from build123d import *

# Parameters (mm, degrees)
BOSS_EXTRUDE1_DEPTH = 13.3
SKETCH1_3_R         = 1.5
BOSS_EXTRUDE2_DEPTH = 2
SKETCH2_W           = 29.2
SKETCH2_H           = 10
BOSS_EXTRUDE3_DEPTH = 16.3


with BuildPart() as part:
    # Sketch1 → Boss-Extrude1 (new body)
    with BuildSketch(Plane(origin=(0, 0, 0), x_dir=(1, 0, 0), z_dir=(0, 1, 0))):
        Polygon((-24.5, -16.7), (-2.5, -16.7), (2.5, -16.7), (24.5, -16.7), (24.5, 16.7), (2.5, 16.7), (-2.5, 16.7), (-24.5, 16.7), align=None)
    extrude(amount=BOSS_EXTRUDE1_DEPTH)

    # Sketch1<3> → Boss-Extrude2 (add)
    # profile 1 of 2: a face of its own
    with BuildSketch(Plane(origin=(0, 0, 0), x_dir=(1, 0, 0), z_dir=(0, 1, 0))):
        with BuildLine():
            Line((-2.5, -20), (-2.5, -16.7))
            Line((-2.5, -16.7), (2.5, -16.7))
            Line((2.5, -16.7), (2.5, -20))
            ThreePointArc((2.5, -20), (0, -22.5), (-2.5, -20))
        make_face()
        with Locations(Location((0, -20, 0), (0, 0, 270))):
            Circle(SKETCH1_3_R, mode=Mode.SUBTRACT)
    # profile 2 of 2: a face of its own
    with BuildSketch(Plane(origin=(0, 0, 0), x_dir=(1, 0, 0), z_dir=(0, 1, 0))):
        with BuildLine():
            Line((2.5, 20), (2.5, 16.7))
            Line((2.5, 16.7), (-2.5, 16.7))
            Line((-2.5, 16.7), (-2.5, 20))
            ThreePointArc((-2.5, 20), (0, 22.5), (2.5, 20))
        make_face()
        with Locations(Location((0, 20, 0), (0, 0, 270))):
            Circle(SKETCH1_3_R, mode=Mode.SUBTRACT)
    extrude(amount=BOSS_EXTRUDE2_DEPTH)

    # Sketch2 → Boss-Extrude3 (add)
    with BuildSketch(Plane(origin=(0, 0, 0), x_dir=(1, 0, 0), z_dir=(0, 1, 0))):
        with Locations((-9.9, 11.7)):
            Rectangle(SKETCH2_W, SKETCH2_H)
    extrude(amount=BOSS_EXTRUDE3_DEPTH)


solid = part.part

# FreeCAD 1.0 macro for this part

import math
import FreeCAD as App
import Part
import Sketcher

doc = App.newDocument("Part")
body = doc.addObject("PartDesign::Body", "Body")

sketch1 = body.newObject("Sketcher::SketchObject", "Sketch")
sketch1.AttachmentSupport = (doc.getObject("XZ_Plane"), [""])
sketch1.MapMode = "FlatFace"
sketch1.addGeometry(Part.LineSegment(App.Vector(-24, 17, 0), App.Vector(24, 17, 0)), False)
sketch1.addGeometry(Part.LineSegment(App.Vector(24, 17, 0), App.Vector(24, -17, 0)), False)
sketch1.addGeometry(Part.LineSegment(App.Vector(24, -17, 0), App.Vector(-24, -17, 0)), False)
sketch1.addGeometry(Part.LineSegment(App.Vector(-24, -17, 0), App.Vector(-24, 17, 0)), False)
sketch1.addConstraint(Sketcher.Constraint("Coincident", 0, 2, 1, 1))
sketch1.addConstraint(Sketcher.Constraint("Coincident", 1, 2, 2, 1))
sketch1.addConstraint(Sketcher.Constraint("Coincident", 2, 2, 3, 1))
sketch1.addConstraint(Sketcher.Constraint("Coincident", 3, 2, 0, 1))
sketch1.addConstraint(Sketcher.Constraint("Horizontal", 0))
sketch1.addConstraint(Sketcher.Constraint("Vertical", 1))
sketch1.addConstraint(Sketcher.Constraint("Horizontal", 2))
sketch1.addConstraint(Sketcher.Constraint("Vertical", 3))
sketch1.addConstraint(Sketcher.Constraint("Symmetric", 0, 2, 2, 2, -1, 1))
sketch1.addConstraint(Sketcher.Constraint("DistanceX", 0, 1, 0, 2, 49.0))
sketch1.addConstraint(Sketcher.Constraint("DistanceY", 1, 2, 1, 1, 33.4))
pad1 = body.newObject("PartDesign::Pad", "Pad")
pad1.Profile = sketch1
pad1.Length = 13.3
pad1.Reversed = True

sketch2 = body.newObject("Sketcher::SketchObject", "Sketch001")
sketch2.AttachmentSupport = (doc.getObject("XZ_Plane"), [""])
sketch2.MapMode = "FlatFace"
sketch2.addGeometry(Part.LineSegment(App.Vector(-2.5, 16.7, 0), App.Vector(-2.5, 20, 0)), False)
sketch2.addGeometry(Part.ArcOfCircle(Part.Circle(App.Vector(0, 20, 0), App.Vector(0, 0, 1), 2.5), math.radians(0), math.radians(180)), False)
sketch2.addGeometry(Part.LineSegment(App.Vector(2.5, 20, 0), App.Vector(2.5, 16.7, 0)), False)
sketch2.addGeometry(Part.LineSegment(App.Vector(2.5, 16.7, 0), App.Vector(-2.5, 16.7, 0)), False)
sketch2.addGeometry(Part.Circle(App.Vector(0, 20, 0), App.Vector(0, 0, 1), 1.5), False)
sketch2.addGeometry(Part.LineSegment(App.Vector(2.5, -16.7, 0), App.Vector(2.5, -20, 0)), False)
sketch2.addGeometry(Part.ArcOfCircle(Part.Circle(App.Vector(0, -20, 0), App.Vector(0, 0, 1), 2.5), math.radians(180), math.radians(360)), False)
sketch2.addGeometry(Part.LineSegment(App.Vector(-2.5, -20, 0), App.Vector(-2.5, -16.7, 0)), False)
sketch2.addGeometry(Part.LineSegment(App.Vector(-2.5, -16.7, 0), App.Vector(2.5, -16.7, 0)), False)
sketch2.addGeometry(Part.Circle(App.Vector(0, -20, 0), App.Vector(0, 0, 1), 1.5), False)
sketch2.addConstraint(Sketcher.Constraint("Tangent", 0, 2, 1, 2))
sketch2.addConstraint(Sketcher.Constraint("Tangent", 1, 1, 2, 1))
sketch2.addConstraint(Sketcher.Constraint("Coincident", 2, 2, 3, 1))
sketch2.addConstraint(Sketcher.Constraint("Coincident", 3, 2, 0, 1))
sketch2.addConstraint(Sketcher.Constraint("Tangent", 5, 2, 6, 2))
sketch2.addConstraint(Sketcher.Constraint("Tangent", 6, 1, 7, 1))
sketch2.addConstraint(Sketcher.Constraint("Coincident", 7, 2, 8, 1))
sketch2.addConstraint(Sketcher.Constraint("Coincident", 8, 2, 5, 1))
sketch2.addConstraint(Sketcher.Constraint("Vertical", 0))
sketch2.addConstraint(Sketcher.Constraint("Vertical", 2))
sketch2.addConstraint(Sketcher.Constraint("Horizontal", 3))
sketch2.addConstraint(Sketcher.Constraint("Vertical", 5))
sketch2.addConstraint(Sketcher.Constraint("Vertical", 7))
sketch2.addConstraint(Sketcher.Constraint("Horizontal", 8))
sketch2.addConstraint(Sketcher.Constraint("Coincident", 4, 3, 1, 3))
sketch2.addConstraint(Sketcher.Constraint("Coincident", 9, 3, 6, 3))
sketch2.addConstraint(Sketcher.Constraint("Equal", 1, 6))
sketch2.addConstraint(Sketcher.Constraint("Equal", 4, 9))
sketch2.addConstraint(Sketcher.Constraint("Symmetric", 1, 3, 6, 3, -1, 1))
sketch2.addConstraint(Sketcher.Constraint("Symmetric", 3, 2, 7, 2, -1))
sketch2.addConstraint(Sketcher.Constraint("Diameter", 4, 3.0))
sketch2.addConstraint(Sketcher.Constraint("Radius", 1, 2.5))
sketch2.addConstraint(Sketcher.Constraint("DistanceY", 0, 1, 0, 2, 3.3))
sketch2.addConstraint(Sketcher.Constraint("DistanceY", -1, 1, 1, 3, 20.0))
pad2 = body.newObject("PartDesign::Pad", "Pad001")
pad2.Profile = sketch2
pad2.Length = 2
pad2.Reversed = True

sketch3 = body.newObject("Sketcher::SketchObject", "Sketch002")
sketch3.AttachmentSupport = (doc.getObject("XZ_Plane"), [""])
sketch3.MapMode = "FlatFace"
sketch3.addGeometry(Part.LineSegment(App.Vector(-24, -17, 0), App.Vector(-24, -7, 0)), False)
sketch3.addGeometry(Part.LineSegment(App.Vector(-24, -7, 0), App.Vector(5, -7, 0)), False)
sketch3.addGeometry(Part.LineSegment(App.Vector(5, -7, 0), App.Vector(5, -17, 0)), False)
sketch3.addGeometry(Part.LineSegment(App.Vector(5, -17, 0), App.Vector(-24, -17, 0)), False)
sketch3.addConstraint(Sketcher.Constraint("Coincident", 0, 2, 1, 1))
sketch3.addConstraint(Sketcher.Constraint("Coincident", 1, 2, 2, 1))
sketch3.addConstraint(Sketcher.Constraint("Coincident", 2, 2, 3, 1))
sketch3.addConstraint(Sketcher.Constraint("Coincident", 3, 2, 0, 1))
sketch3.addConstraint(Sketcher.Constraint("Vertical", 0))
sketch3.addConstraint(Sketcher.Constraint("Horizontal", 1))
sketch3.addConstraint(Sketcher.Constraint("Vertical", 2))
sketch3.addConstraint(Sketcher.Constraint("Horizontal", 3))
sketch3.addConstraint(Sketcher.Constraint("DistanceY", 0, 1, 0, 2, 10.0))
sketch3.addConstraint(Sketcher.Constraint("DistanceX", 1, 1, 1, 2, 29.2))
sketch3.addConstraint(Sketcher.Constraint("DistanceX", 0, 2, -1, 1, 24.5))
sketch3.addConstraint(Sketcher.Constraint("DistanceY", 0, 2, -1, 1, 6.7))
pad3 = body.newObject("PartDesign::Pad", "Pad002")
pad3.Profile = sketch3
pad3.Length = 16.3
pad3.Reversed = True

doc.recompute()
